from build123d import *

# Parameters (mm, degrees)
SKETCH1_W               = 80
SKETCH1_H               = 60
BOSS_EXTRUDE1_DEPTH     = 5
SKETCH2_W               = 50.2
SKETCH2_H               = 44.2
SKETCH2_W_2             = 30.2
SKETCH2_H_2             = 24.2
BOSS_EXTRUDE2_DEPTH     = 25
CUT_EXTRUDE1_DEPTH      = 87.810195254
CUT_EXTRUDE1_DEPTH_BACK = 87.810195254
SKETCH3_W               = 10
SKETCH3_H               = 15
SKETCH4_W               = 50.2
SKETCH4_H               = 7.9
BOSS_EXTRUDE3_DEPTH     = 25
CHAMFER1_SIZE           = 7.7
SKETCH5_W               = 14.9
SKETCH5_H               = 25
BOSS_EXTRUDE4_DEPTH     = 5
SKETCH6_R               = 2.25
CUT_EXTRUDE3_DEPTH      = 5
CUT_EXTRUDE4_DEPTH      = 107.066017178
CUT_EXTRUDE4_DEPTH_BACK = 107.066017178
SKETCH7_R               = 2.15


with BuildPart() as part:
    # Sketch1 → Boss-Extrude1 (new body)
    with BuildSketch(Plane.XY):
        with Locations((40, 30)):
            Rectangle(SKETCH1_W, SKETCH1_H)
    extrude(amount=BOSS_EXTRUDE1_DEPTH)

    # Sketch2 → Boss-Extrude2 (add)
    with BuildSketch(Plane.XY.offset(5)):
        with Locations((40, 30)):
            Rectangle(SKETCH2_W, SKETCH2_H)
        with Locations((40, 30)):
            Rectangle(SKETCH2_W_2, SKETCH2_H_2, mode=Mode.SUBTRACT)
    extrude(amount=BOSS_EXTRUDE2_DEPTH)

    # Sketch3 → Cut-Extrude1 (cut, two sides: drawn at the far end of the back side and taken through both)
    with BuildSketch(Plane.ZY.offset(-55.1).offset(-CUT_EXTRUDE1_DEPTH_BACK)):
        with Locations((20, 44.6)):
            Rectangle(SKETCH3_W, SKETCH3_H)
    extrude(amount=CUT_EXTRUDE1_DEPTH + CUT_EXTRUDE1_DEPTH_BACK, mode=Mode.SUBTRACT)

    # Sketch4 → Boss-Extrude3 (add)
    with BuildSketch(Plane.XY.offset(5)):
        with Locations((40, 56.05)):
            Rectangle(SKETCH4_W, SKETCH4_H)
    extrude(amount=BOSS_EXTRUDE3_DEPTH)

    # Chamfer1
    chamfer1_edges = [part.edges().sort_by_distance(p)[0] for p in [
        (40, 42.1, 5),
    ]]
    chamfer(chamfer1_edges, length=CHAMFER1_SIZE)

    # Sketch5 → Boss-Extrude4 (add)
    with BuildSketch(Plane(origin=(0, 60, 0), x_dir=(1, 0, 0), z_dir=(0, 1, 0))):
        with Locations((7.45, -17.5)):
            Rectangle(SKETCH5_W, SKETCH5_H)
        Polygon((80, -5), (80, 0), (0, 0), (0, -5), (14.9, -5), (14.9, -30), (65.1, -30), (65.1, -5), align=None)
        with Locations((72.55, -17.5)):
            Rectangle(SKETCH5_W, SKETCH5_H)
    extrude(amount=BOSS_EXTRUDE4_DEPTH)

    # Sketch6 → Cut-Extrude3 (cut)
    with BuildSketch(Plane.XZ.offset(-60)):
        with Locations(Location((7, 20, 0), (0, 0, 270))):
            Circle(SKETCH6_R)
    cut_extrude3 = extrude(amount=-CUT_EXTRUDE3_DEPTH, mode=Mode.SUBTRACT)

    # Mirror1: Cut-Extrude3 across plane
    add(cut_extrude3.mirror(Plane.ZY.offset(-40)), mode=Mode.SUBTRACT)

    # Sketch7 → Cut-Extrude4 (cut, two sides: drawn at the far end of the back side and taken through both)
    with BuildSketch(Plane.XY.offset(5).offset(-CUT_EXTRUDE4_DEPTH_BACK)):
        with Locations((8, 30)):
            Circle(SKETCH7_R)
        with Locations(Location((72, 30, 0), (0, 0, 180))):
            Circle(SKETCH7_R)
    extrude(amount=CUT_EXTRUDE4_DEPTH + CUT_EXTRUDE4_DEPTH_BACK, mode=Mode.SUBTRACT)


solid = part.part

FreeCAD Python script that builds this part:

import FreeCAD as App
import Part
import Sketcher
from FreeCAD import Vector
Q = App.Units.Quantity


def edges_at(feature, points):
    """Names of the edges that pass closest to the given points."""
    edges = feature.Shape.Edges
    near = lambda p: min(range(len(edges)), key=lambda i: edges[i].distToShape(Part.Vertex(*p))[0])
    return sorted({f"Edge{near(p) + 1}" for p in points})

doc = App.newDocument("Part")
params = doc.addObject("Spreadsheet::Sheet", "Params")
for row, (alias, value) in enumerate([
    ("sketch1_width", "80 mm"),
    ("sketch1_height", "60 mm"),
    ("pad1_length", "5 mm"),
    ("sketch2_width", "50.2 mm"),
    ("sketch2_width2", "30.2 mm"),
    ("sketch2_height", "44.2 mm"),
    ("sketch2_height2", "24.2 mm"),
    ("pad2_length", "25 mm"),
    ("sketch3_width", "15 mm"),
    ("sketch3_height", "10 mm"),
    ("sketch4_width", "50.2 mm"),
    ("sketch4_height", "7.9 mm"),
    ("pad3_length", "25 mm"),
    ("chamfer_size", "7.7 mm"),
    ("sketch5_width", "80 mm"),
    ("sketch5_height", "30 mm"),
    ("pad4_length", "5 mm"),
    ("sketch6_diameter", "4.5 mm"),
    ("pocket2_length", "5 mm"),
    ("sketch7_diameter", "4.3 mm"),
], start=1):
    params.set(f"A{row}", alias)
    params.set(f"B{row}", "=" + value)
    params.setAlias(f"B{row}", alias)

body = doc.addObject("PartDesign::Body", "Body")

# Sketch on XY plane
sketch1 = body.newObject("Sketcher::SketchObject", "Sketch")
sketch1.AttachmentSupport = (doc.getObject("XY_Plane"), [""])
sketch1.MapMode = "FlatFace"
sketch1.addGeometry([
    Part.LineSegment(Vector(0, 60, 0), Vector(0, 0, 0)),
    Part.LineSegment(Vector(0, 0, 0), Vector(80, 0, 0)),
    Part.LineSegment(Vector(80, 0, 0), Vector(80, 60, 0)),
    Part.LineSegment(Vector(80, 60, 0), Vector(0, 60, 0)),
], False)
sketch1.addConstraint([
    Sketcher.Constraint("Coincident", 0, 2, 1, 1),
    Sketcher.Constraint("Coincident", 1, 2, 2, 1),
    Sketcher.Constraint("Coincident", 2, 2, 3, 1),
    Sketcher.Constraint("Coincident", 3, 2, 0, 1),
    Sketcher.Constraint("Vertical", 0),
    Sketcher.Constraint("Horizontal", 1),
    Sketcher.Constraint("Vertical", 2),
    Sketcher.Constraint("Horizontal", 3),
    Sketcher.Constraint("Coincident", 0, 2, -1, 1),
    Sketcher.Constraint("DistanceX", 1, 1, 1, 2, Q("80 mm")),
    Sketcher.Constraint("DistanceY", 0, 2, 0, 1, Q("60 mm")),
])
sketch1.setExpression("Constraints[9]", "Params.sketch1_width")
sketch1.setExpression("Constraints[10]", "Params.sketch1_height")
pad1 = body.newObject("PartDesign::Pad", "Pad")
pad1.Profile = sketch1
pad1.setExpression("Length", "Params.pad1_length")

# Sketch on XY plane
sketch2 = body.newObject("Sketcher::SketchObject", "Sketch001")
sketch2.AttachmentSupport = (doc.getObject("XY_Plane"), [""])
sketch2.MapMode = "FlatFace"
sketch2.AttachmentOffset = App.Placement(Vector(0, 0, 5), App.Rotation())
sketch2.addGeometry([
    Part.LineSegment(Vector(15, 52, 0), Vector(15, 8, 0)),  # 0
    Part.LineSegment(Vector(15, 8, 0), Vector(65, 8, 0)),  # 1
    Part.LineSegment(Vector(65, 8, 0), Vector(65, 52, 0)),  # 2
    Part.LineSegment(Vector(65, 52, 0), Vector(15, 52, 0)),  # 3
    Part.LineSegment(Vector(55, 18, 0), Vector(25, 18, 0)),  # 4
    Part.LineSegment(Vector(25, 18, 0), Vector(25, 42, 0)),  # 5
    Part.LineSegment(Vector(25, 42, 0), Vector(55, 42, 0)),  # 6
    Part.LineSegment(Vector(55, 42, 0), Vector(55, 18, 0)),  # 7
], False)
sketch2.addConstraint([
    Sketcher.Constraint("Coincident", 0, 2, 1, 1),
    Sketcher.Constraint("Coincident", 1, 2, 2, 1),
    Sketcher.Constraint("Coincident", 2, 2, 3, 1),
    Sketcher.Constraint("Coincident", 3, 2, 0, 1),
    Sketcher.Constraint("Coincident", 4, 2, 5, 1),
    Sketcher.Constraint("Coincident", 5, 2, 6, 1),
    Sketcher.Constraint("Coincident", 6, 2, 7, 1),
    Sketcher.Constraint("Coincident", 7, 2, 4, 1),
    Sketcher.Constraint("Vertical", 0),
    Sketcher.Constraint("Horizontal", 1),
    Sketcher.Constraint("Vertical", 2),
    Sketcher.Constraint("Horizontal", 3),
    Sketcher.Constraint("Horizontal", 4),
    Sketcher.Constraint("Vertical", 5),
    Sketcher.Constraint("Horizontal", 6),
    Sketcher.Constraint("Vertical", 7),
    Sketcher.Constraint("DistanceX", 1, 1, 1, 2, Q("50.2 mm")),
    Sketcher.Constraint("DistanceX", 4, 2, 4, 1, Q("30.2 mm")),
    Sketcher.Constraint("DistanceY", 0, 2, 0, 1, Q("44.2 mm")),
    Sketcher.Constraint("DistanceY", 5, 1, 5, 2, Q("24.2 mm")),
    Sketcher.Constraint("DistanceX", 0, 2, 4, 2, Q("10 mm")),
    Sketcher.Constraint("DistanceY", 0, 2, 4, 2, Q("10 mm")),
    Sketcher.Constraint("DistanceX", -1, 1, 0, 2, Q("14.9 mm")),
    Sketcher.Constraint("DistanceY", -1, 1, 0, 2, Q("7.9 mm")),
])
sketch2.setExpression("Constraints[16]", "Params.sketch2_width")
sketch2.setExpression("Constraints[17]", "Params.sketch2_width2")
sketch2.setExpression("Constraints[18]", "Params.sketch2_height")
sketch2.setExpression("Constraints[19]", "Params.sketch2_height2")
pad2 = body.newObject("PartDesign::Pad", "Pad001")
pad2.Profile = sketch2
pad2.setExpression("Length", "Params.pad2_length")

# Sketch on YZ plane
sketch3 = body.newObject("Sketcher::SketchObject", "Sketch002")
sketch3.AttachmentSupport = (doc.getObject("YZ_Plane"), [""])
sketch3.MapMode = "FlatFace"
sketch3.AttachmentOffset = App.Placement(Vector(0, 0, 55.1), App.Rotation())
sketch3.addGeometry([
    Part.LineSegment(Vector(52, 15, 0), Vector(37, 15, 0)),
    Part.LineSegment(Vector(37, 15, 0), Vector(37, 25, 0)),
    Part.LineSegment(Vector(37, 25, 0), Vector(52, 25, 0)),
    Part.LineSegment(Vector(52, 25, 0), Vector(52, 15, 0)),
], False)
sketch3.addConstraint([
    Sketcher.Constraint("Coincident", 0, 2, 1, 1),
    Sketcher.Constraint("Coincident", 1, 2, 2, 1),
    Sketcher.Constraint("Coincident", 2, 2, 3, 1),
    Sketcher.Constraint("Coincident", 3, 2, 0, 1),
    Sketcher.Constraint("Horizontal", 0),
    Sketcher.Constraint("Vertical", 1),
    Sketcher.Constraint("Horizontal", 2),
    Sketcher.Constraint("Vertical", 3),
    Sketcher.Constraint("DistanceX", 0, 2, 0, 1, Q("15 mm")),
    Sketcher.Constraint("DistanceY", 1, 1, 1, 2, Q("10 mm")),
    Sketcher.Constraint("DistanceY", -1, 1, 0, 2, Q("15 mm")),
    Sketcher.Constraint("DistanceX", -1, 1, 0, 2, Q("37.1 mm")),
])
sketch3.setExpression("Constraints[8]", "Params.sketch3_width")
sketch3.setExpression("Constraints[9]", "Params.sketch3_height")
pocket1 = body.newObject("PartDesign::Pocket", "Pocket")
pocket1.Profile = sketch3
pocket1.Type = "ThroughAll"
pocket1.Midplane = True

# Sketch on XY plane
sketch4 = body.newObject("Sketcher::SketchObject", "Sketch003")
sketch4.AttachmentSupport = (doc.getObject("XY_Plane"), [""])
sketch4.MapMode = "FlatFace"
sketch4.AttachmentOffset = App.Placement(Vector(0, 0, 5), App.Rotation())
sketch4.addGeometry([
    Part.LineSegment(Vector(15, 60, 0), Vector(15, 52, 0)),
    Part.LineSegment(Vector(15, 52, 0), Vector(65, 52, 0)),
    Part.LineSegment(Vector(65, 52, 0), Vector(65, 60, 0)),
    Part.LineSegment(Vector(65, 60, 0), Vector(15, 60, 0)),
], False)
sketch4.addConstraint([
    Sketcher.Constraint("Coincident", 0, 2, 1, 1),
    Sketcher.Constraint("Coincident", 1, 2, 2, 1),
    Sketcher.Constraint("Coincident", 2, 2, 3, 1),
    Sketcher.Constraint("Coincident", 3, 2, 0, 1),
    Sketcher.Constraint("Vertical", 0),
    Sketcher.Constraint("Horizontal", 1),
    Sketcher.Constraint("Vertical", 2),
    Sketcher.Constraint("Horizontal", 3),
    Sketcher.Constraint("DistanceX", 1, 1, 1, 2, Q("50.2 mm")),
    Sketcher.Constraint("DistanceY", 0, 2, 0, 1, Q("7.9 mm")),
    Sketcher.Constraint("DistanceY", -1, 1, 2, 2, Q("60 mm")),
    Sketcher.Constraint("DistanceX", -1, 1, 0, 2, Q("14.9 mm")),
])
sketch4.setExpression("Constraints[8]", "Params.sketch4_width")
sketch4.setExpression("Constraints[9]", "Params.sketch4_height")
pad3 = body.newObject("PartDesign::Pad", "Pad002")
pad3.Profile = sketch4
pad3.setExpression("Length", "Params.pad3_length")
doc.recompute()

chamfer = body.newObject("PartDesign::Chamfer", "Chamfer")
chamfer.Base = (pad3, edges_at(pad3, [(40, 42.1, 5)]))
chamfer.setExpression("Size", "Params.chamfer_size")

# Sketch on XZ plane
sketch5 = body.newObject("Sketcher::SketchObject", "Sketch004")
sketch5.AttachmentSupport = (doc.getObject("XZ_Plane"), [""])
sketch5.MapMode = "FlatFace"
sketch5.AttachmentOffset = App.Placement(Vector(0, 0, -60), App.Rotation())
sketch5.addGeometry([
    Part.LineSegment(Vector(0, 30, 0), Vector(80, 30, 0)),
    Part.LineSegment(Vector(80, 30, 0), Vector(80, 0, 0)),
    Part.LineSegment(Vector(80, 0, 0), Vector(0, 0, 0)),
    Part.LineSegment(Vector(0, 0, 0), Vector(0, 30, 0)),
], False)
sketch5.addConstraint([
    Sketcher.Constraint("Coincident", 0, 2, 1, 1),
    Sketcher.Constraint("Coincident", 1, 2, 2, 1),
    Sketcher.Constraint("Coincident", 2, 2, 3, 1),
    Sketcher.Constraint("Coincident", 3, 2, 0, 1),
    Sketcher.Constraint("Horizontal", 0),
    Sketcher.Constraint("Vertical", 1),
    Sketcher.Constraint("Horizontal", 2),
    Sketcher.Constraint("Vertical", 3),
    Sketcher.Constraint("Coincident", 2, 2, -1, 1),
    Sketcher.Constraint("DistanceX", 0, 1, 0, 2, Q("80 mm")),
    Sketcher.Constraint("DistanceY", 1, 2, 1, 1, Q("30 mm")),
])
sketch5.setExpression("Constraints[9]", "Params.sketch5_width")
sketch5.setExpression("Constraints[10]", "Params.sketch5_height")
pad4 = body.newObject("PartDesign::Pad", "Pad003")
pad4.Profile = sketch5
pad4.setExpression("Length", "Params.pad4_length")
pad4.Reversed = True

# Sketch on XZ plane
sketch6 = body.newObject("Sketcher::SketchObject", "Sketch005")
sketch6.AttachmentSupport = (doc.getObject("XZ_Plane"), [""])
sketch6.MapMode = "FlatFace"
sketch6.AttachmentOffset = App.Placement(Vector(0, 0, -60), App.Rotation())
sketch6.addGeometry(Part.Circle(Vector(7, 20, 0), Vector(0, 0, 1), 2.2), False)
sketch6.addConstraint([
    Sketcher.Constraint("Diameter", 0, Q("4.5 mm")),
    Sketcher.Constraint("DistanceX", -1, 1, 0, 3, Q("7 mm")),
    Sketcher.Constraint("DistanceY", -1, 1, 0, 3, Q("20 mm")),
])
sketch6.setExpression("Constraints[0]", "Params.sketch6_diameter")
pocket2 = body.newObject("PartDesign::Pocket", "Pocket001")
pocket2.Profile = sketch6
pocket2.setExpression("Length", "Params.pocket2_length")
doc.recompute()

datumplane = body.newObject("PartDesign::Plane", "DatumPlane")
datumplane.AttachmentSupport = (doc.getObject("YZ_Plane"), [""])
datumplane.MapMode = "FlatFace"
datumplane.AttachmentOffset = App.Placement(Vector(0, 0, 40), App.Rotation())
mirrored = body.newObject("PartDesign::Mirrored", "Mirrored")
mirrored.Originals = [pocket2]
mirrored.MirrorPlane = (datumplane, [""])
body.Tip = mirrored

# Sketch on XY plane
sketch7 = body.newObject("Sketcher::SketchObject", "Sketch006")
sketch7.AttachmentSupport = (doc.getObject("XY_Plane"), [""])
sketch7.MapMode = "FlatFace"
sketch7.AttachmentOffset = App.Placement(Vector(0, 0, 5), App.Rotation())
sketch7.addGeometry([
    Part.Circle(Vector(8, 30, 0), Vector(0, 0, 1), 2.1),
    Part.Circle(Vector(72, 30, 0), Vector(0, 0, 1), 2.1),
], False)
sketch7.addConstraint([
    Sketcher.Constraint("Equal", 0, 1),
    Sketcher.Constraint("Horizontal", 0, 3, 1, 3),
    Sketcher.Constraint("Diameter", 0, Q("4.3 mm")),
    Sketcher.Constraint("DistanceX", -1, 1, 0, 3, Q("8 mm")),
    Sketcher.Constraint("DistanceY", -1, 1, 0, 3, Q("30 mm")),
    Sketcher.Constraint("DistanceX", -1, 1, 1, 3, Q("72 mm")),
])
sketch7.setExpression("Constraints[2]", "Params.sketch7_diameter")
pocket3 = body.newObject("PartDesign::Pocket", "Pocket002")
pocket3.Profile = sketch7
pocket3.Type = "ThroughAll"
pocket3.Midplane = True

doc.recompute()
